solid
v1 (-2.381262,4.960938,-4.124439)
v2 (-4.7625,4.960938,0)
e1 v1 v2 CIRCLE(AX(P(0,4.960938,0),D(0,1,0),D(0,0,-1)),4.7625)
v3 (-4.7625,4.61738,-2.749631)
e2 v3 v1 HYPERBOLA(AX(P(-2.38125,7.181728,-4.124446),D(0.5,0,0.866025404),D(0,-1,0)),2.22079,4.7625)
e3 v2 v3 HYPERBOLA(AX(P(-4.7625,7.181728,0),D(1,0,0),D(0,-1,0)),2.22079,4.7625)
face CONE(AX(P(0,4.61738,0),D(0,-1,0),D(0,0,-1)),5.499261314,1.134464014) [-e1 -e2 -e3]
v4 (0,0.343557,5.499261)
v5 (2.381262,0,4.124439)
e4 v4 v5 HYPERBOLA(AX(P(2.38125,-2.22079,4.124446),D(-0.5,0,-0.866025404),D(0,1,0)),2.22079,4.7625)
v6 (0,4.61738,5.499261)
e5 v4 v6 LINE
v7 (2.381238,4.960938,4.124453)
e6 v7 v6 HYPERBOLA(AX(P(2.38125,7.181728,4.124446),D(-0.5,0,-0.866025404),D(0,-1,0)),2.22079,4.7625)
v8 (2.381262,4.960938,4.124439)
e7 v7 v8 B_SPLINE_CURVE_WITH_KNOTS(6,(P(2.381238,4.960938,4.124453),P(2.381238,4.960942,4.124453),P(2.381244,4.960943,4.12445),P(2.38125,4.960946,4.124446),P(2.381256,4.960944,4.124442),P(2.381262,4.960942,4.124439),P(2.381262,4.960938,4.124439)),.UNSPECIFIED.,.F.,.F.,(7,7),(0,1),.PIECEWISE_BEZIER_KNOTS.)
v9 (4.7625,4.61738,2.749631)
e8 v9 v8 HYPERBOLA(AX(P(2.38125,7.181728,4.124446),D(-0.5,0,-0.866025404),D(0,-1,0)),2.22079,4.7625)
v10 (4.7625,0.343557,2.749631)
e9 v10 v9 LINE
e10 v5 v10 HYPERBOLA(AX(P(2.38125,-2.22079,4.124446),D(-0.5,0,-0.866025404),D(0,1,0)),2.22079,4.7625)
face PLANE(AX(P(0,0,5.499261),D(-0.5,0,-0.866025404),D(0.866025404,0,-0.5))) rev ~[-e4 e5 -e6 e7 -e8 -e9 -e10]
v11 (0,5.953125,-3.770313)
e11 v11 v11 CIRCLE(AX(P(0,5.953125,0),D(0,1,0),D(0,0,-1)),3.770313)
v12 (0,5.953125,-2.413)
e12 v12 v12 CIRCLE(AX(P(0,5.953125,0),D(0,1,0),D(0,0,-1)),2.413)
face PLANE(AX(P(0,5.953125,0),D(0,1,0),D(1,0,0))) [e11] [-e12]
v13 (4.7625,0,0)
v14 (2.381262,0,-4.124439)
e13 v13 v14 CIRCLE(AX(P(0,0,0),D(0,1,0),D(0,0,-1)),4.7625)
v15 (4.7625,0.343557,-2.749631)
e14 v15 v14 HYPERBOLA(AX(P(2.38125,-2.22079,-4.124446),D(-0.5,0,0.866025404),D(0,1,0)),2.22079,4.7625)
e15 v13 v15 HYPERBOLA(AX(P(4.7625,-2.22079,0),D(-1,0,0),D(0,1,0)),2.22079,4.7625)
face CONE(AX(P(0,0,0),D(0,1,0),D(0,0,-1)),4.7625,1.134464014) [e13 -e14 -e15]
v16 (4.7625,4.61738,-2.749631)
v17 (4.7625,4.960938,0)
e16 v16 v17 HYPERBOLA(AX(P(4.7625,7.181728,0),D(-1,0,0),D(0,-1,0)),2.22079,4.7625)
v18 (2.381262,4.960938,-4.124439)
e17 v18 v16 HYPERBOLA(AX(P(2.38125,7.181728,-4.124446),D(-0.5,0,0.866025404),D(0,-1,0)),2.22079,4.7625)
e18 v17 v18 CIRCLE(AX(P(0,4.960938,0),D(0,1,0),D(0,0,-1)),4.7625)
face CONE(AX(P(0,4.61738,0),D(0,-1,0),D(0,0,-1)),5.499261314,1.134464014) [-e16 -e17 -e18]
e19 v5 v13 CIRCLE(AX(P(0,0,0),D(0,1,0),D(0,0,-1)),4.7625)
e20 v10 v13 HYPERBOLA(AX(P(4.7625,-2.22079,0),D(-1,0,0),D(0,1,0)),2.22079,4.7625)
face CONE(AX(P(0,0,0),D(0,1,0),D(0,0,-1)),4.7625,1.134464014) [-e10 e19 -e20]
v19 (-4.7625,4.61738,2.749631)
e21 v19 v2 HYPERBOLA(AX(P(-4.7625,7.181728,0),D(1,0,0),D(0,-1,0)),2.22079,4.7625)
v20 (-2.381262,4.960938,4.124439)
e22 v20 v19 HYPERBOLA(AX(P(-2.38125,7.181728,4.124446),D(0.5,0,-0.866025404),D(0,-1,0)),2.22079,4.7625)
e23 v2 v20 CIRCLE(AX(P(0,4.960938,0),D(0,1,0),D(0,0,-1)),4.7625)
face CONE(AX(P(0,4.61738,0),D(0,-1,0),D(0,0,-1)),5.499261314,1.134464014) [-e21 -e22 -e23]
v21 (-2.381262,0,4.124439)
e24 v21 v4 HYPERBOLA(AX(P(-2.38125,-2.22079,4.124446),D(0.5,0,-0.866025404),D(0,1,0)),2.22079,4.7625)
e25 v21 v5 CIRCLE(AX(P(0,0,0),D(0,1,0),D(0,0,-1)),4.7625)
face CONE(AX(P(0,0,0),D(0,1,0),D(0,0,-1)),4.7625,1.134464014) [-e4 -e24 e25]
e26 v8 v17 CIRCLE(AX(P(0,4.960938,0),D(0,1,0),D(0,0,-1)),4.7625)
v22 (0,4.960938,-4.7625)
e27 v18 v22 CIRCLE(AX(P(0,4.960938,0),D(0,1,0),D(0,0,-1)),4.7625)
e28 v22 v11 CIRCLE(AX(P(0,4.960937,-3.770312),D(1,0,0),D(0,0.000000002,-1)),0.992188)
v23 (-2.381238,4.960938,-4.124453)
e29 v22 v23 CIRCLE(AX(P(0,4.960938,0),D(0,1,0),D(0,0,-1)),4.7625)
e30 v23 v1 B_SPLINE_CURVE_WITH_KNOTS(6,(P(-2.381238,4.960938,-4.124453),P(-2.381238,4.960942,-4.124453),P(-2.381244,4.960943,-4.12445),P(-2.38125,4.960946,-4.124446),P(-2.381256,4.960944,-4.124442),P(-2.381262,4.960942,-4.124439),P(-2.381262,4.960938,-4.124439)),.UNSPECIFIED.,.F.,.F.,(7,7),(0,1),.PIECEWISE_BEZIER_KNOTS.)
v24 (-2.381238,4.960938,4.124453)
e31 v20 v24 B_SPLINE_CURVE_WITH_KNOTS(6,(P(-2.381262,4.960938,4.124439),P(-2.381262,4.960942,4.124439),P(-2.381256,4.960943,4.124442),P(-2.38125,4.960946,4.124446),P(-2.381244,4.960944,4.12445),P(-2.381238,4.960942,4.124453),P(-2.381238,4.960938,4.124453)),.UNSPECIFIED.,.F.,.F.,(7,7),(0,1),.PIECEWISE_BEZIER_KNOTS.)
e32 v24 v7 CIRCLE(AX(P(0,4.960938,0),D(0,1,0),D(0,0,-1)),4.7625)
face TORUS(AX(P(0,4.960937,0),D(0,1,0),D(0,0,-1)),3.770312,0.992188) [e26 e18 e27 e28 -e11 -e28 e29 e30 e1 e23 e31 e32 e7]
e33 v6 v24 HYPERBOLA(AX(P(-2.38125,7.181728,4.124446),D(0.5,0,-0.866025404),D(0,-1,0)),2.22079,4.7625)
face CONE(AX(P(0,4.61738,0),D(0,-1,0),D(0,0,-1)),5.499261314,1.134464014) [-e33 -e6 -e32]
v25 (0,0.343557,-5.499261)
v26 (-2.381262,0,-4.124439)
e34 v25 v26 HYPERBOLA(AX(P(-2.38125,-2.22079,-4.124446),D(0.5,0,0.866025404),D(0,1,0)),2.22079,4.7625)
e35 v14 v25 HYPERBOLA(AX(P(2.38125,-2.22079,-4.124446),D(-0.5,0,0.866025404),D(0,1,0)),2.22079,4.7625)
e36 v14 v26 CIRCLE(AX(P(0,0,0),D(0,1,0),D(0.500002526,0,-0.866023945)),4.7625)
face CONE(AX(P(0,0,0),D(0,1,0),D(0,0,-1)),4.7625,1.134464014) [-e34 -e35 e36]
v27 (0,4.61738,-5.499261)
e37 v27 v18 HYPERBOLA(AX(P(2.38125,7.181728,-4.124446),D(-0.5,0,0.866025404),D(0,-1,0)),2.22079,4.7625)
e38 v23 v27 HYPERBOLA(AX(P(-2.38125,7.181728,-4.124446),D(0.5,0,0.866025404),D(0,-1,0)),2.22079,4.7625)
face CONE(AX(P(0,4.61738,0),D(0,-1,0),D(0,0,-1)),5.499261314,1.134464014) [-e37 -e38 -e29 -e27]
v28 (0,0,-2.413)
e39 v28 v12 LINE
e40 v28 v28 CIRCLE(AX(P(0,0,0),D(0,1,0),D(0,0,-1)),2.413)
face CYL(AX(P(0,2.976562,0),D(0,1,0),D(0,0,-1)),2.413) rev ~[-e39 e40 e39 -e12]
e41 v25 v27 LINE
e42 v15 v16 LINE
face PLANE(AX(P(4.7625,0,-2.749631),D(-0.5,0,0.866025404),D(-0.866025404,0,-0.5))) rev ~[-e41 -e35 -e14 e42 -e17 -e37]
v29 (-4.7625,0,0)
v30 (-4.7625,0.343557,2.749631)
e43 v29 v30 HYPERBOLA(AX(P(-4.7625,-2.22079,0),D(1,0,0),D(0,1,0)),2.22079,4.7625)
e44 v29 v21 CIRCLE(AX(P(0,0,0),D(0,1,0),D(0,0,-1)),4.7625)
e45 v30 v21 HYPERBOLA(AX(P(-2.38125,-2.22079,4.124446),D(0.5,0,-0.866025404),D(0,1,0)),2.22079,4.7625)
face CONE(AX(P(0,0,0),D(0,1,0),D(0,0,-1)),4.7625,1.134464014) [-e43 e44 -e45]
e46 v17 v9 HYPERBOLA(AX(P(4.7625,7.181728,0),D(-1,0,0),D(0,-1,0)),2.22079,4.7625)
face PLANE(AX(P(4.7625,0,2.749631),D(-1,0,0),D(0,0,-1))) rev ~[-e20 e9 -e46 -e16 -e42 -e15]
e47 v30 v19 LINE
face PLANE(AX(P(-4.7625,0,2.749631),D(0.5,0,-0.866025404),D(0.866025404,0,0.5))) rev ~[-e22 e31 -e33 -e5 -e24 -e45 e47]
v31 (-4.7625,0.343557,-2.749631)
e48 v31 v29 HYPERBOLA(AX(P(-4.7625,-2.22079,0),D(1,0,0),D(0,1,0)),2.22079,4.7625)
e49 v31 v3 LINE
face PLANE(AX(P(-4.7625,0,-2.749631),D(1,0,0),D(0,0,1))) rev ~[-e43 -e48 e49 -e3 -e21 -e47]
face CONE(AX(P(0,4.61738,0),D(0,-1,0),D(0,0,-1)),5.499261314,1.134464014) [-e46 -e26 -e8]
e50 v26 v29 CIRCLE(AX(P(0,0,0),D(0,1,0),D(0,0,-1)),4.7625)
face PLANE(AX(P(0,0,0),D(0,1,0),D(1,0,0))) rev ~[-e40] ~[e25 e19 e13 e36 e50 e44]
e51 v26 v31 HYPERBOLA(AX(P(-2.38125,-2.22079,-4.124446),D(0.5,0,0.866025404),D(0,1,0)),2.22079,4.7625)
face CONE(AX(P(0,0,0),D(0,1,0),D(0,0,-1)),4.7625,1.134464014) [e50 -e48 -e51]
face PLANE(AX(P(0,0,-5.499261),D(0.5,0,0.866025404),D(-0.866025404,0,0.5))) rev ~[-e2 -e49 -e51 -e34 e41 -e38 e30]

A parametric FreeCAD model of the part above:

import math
import FreeCAD as App
import Part
import Sketcher
Q = App.Units.Quantity

doc = App.newDocument("Part")
body = doc.addObject("PartDesign::Body", "Body")

# Sketch on XZ plane
sketch1 = body.newObject("Sketcher::SketchObject", "Sketch")
sketch1.AttachmentSupport = (doc.getObject("XZ_Plane"), [""])
sketch1.MapMode = "FlatFace"
sketch1.addGeometry([
    Part.LineSegment(App.Vector(0, -5.499261, 0), App.Vector(-4.7625, -2.749631, 0)),  # 0
    Part.LineSegment(App.Vector(-4.7625, -2.749631, 0), App.Vector(-4.7625, 2.749631, 0)),  # 1
    Part.LineSegment(App.Vector(-4.7625, 2.749631, 0), App.Vector(0, 5.499261, 0)),  # 2
    Part.LineSegment(App.Vector(0, 5.499261, 0), App.Vector(4.7625, 2.749631, 0)),  # 3
    Part.LineSegment(App.Vector(4.7625, 2.749631, 0), App.Vector(4.7625, -2.749631, 0)),  # 4
    Part.LineSegment(App.Vector(4.7625, -2.749631, 0), App.Vector(0, -5.499261, 0)),  # 5
], False)
sketch1.addConstraint([
    Sketcher.Constraint("Coincident", 0, 2, 1, 1),
    Sketcher.Constraint("Coincident", 1, 2, 2, 1),
    Sketcher.Constraint("Coincident", 2, 2, 3, 1),
    Sketcher.Constraint("Coincident", 3, 2, 4, 1),
    Sketcher.Constraint("Coincident", 4, 2, 5, 1),
    Sketcher.Constraint("Coincident", 5, 2, 0, 1),
    Sketcher.Constraint("Vertical", 1),
    Sketcher.Constraint("Vertical", 4),
    Sketcher.Constraint("Symmetric", 0, 2, 3, 2, -1, 1),
    Sketcher.Constraint("Symmetric", 2, 2, 5, 2, -1, 1),
    Sketcher.Constraint("PointOnObject", 2, 2, -2),
    Sketcher.Constraint("Parallel", 2, 5),
    Sketcher.Constraint("Horizontal", 1, 2, 3, 2),
    Sketcher.Constraint("Angle", 0, Q("150 deg")),
    Sketcher.Constraint("DistanceX", 0, 2, -1, 1, Q("0.1875 in")),
    Sketcher.Constraint("DistanceY", 1, 1, 1, 2, Q("5.499261 mm")),
])
pad1 = body.newObject("PartDesign::Pad", "Pad")
pad1.Profile = sketch1
pad1.Length = Q("0.234375 in")
pad1.Reversed = True
body2 = doc.addObject("PartDesign::Body", "Body001")

# Sketch on YZ plane
sketch2 = body2.newObject("Sketcher::SketchObject", "Sketch001")
sketch2.AttachmentSupport = (doc.getObject("YZ_Plane001"), [""])
sketch2.MapMode = "FlatFace"
sketch2.addGeometry([
    Part.LineSegment(App.Vector(5.953125, 0, 0), App.Vector(0, 0, 0)),
    Part.LineSegment(App.Vector(0, 0, 0), App.Vector(0, -2.413, 0)),
    Part.LineSegment(App.Vector(0, -2.413, 0), App.Vector(5.953125, -2.413, 0)),
    Part.LineSegment(App.Vector(5.953125, -2.413, 0), App.Vector(5.953125, 0, 0)),
], False)
sketch2.addConstraint([
    Sketcher.Constraint("Coincident", 0, 2, 1, 1),
    Sketcher.Constraint("Coincident", 1, 2, 2, 1),
    Sketcher.Constraint("Coincident", 2, 2, 3, 1),
    Sketcher.Constraint("Coincident", 3, 2, 0, 1),
    Sketcher.Constraint("Horizontal", 0),
    Sketcher.Constraint("Vertical", 1),
    Sketcher.Constraint("Horizontal", 2),
    Sketcher.Constraint("Vertical", 3),
    Sketcher.Constraint("Coincident", 0, 2, -1, 1),
    Sketcher.Constraint("DistanceX", 0, 2, 0, 1, Q("0.234375 in")),
    Sketcher.Constraint("DistanceY", 1, 2, 1, 1, Q("0.095 in")),
])
revolution = body2.newObject("PartDesign::Revolution", "Revolution")
revolution.Profile = sketch2
revolution.ReferenceAxis = (sketch2, ["H_Axis"])
revolution.Angle = 360
doc.recompute()

boolean = body.newObject("PartDesign::Boolean", "Boolean")
boolean.Type = "Cut"
boolean.addObjects([body2])

# Sketch on YZ plane
sketch3 = body.newObject("Sketcher::SketchObject", "Sketch002")
sketch3.AttachmentSupport = (doc.getObject("YZ_Plane"), [""])
sketch3.MapMode = "FlatFace"
sketch3.addGeometry([
    Part.LineSegment(App.Vector(0, -4.7625, 0), App.Vector(0, 0, 0)),  # 0
    Part.LineSegment(App.Vector(0, 0, 0), App.Vector(-1.27, 0, 0)),  # 1
    Part.LineSegment(App.Vector(-1.27, 0, 0), App.Vector(-1.27, -6.769261, 0)),  # 2
    Part.LineSegment(App.Vector(-1.27, -6.769261, 0), App.Vector(7.223125, -6.769261, 0)),  # 3
    Part.LineSegment(App.Vector(7.223125, -6.769261, 0), App.Vector(7.223125, -3.770313, 0)),  # 4
    Part.LineSegment(App.Vector(7.223125, -3.770313, 0), App.Vector(5.953125, -3.770313, 0)),  # 5
    Part.ArcOfCircle(Part.Circle(App.Vector(4.960937, -3.770312, 0), App.Vector(0, 0, 1), 0.992188), math.radians(-90), math.radians(0)),  # 6
    Part.LineSegment(App.Vector(4.960938, -4.7625, 0), App.Vector(4.61738, -5.499261, 0)),  # 7
    Part.LineSegment(App.Vector(4.61738, -5.499261, 0), App.Vector(0.343557, -5.499261, 0)),  # 8
    Part.LineSegment(App.Vector(0.343557, -5.499261, 0), App.Vector(0, -4.7625, 0)),  # 9
], False)
sketch3.addConstraint([
    Sketcher.Constraint("Coincident", 0, 2, 1, 1),
    Sketcher.Constraint("Coincident", 1, 2, 2, 1),
    Sketcher.Constraint("Coincident", 2, 2, 3, 1),
    Sketcher.Constraint("Coincident", 3, 2, 4, 1),
    Sketcher.Constraint("Coincident", 4, 2, 5, 1),
    Sketcher.Constraint("Coincident", 5, 2, 6, 2),
    Sketcher.Constraint("Coincident", 6, 1, 7, 1),
    Sketcher.Constraint("Coincident", 7, 2, 8, 1),
    Sketcher.Constraint("Coincident", 8, 2, 9, 1),
    Sketcher.Constraint("Coincident", 9, 2, 0, 1),
    Sketcher.Constraint("Vertical", 0),
    Sketcher.Constraint("Horizontal", 1),
    Sketcher.Constraint("Vertical", 2),
    Sketcher.Constraint("Horizontal", 3),
    Sketcher.Constraint("Vertical", 4),
    Sketcher.Constraint("Horizontal", 5),
    Sketcher.Constraint("Horizontal", 8),
    Sketcher.Constraint("Coincident", 0, 2, -1, 1),
    Sketcher.Constraint("Horizontal", 6, 3, 4, 2),
    Sketcher.Constraint("Horizontal", 6, 1, 9, 2),
    Sketcher.Constraint("Equal", 1, 5),
    Sketcher.Constraint("Equal", 7, 9),
    Sketcher.Constraint("Angle", 7, Q("-115 deg")),
    Sketcher.Constraint("DistanceX", 1, 2, 1, 1, Q("0.05 in")),
    Sketcher.Constraint("DistanceY", 0, 1, 0, 2, Q("0.1875 in")),
    Sketcher.Constraint("DistanceY", 3, 2, 7, 2, Q("0.05 in")),
    Sketcher.Constraint("DistanceX", -1, 1, 5, 2, Q("0.234375 in")),
    Sketcher.Constraint("Radius", 6, Q("0.992188 mm")),
    Sketcher.Constraint("DistanceY", 2, 2, 2, 1, Q("6.769261 mm")),
    Sketcher.Constraint("DistanceX", 8, 2, 8, 1, Q("4.273823 mm")),
])
groove = body.newObject("PartDesign::Groove", "Groove")
groove.Profile = sketch3
groove.ReferenceAxis = (sketch3, ["H_Axis"])
groove.Angle = 360

doc.recompute()
